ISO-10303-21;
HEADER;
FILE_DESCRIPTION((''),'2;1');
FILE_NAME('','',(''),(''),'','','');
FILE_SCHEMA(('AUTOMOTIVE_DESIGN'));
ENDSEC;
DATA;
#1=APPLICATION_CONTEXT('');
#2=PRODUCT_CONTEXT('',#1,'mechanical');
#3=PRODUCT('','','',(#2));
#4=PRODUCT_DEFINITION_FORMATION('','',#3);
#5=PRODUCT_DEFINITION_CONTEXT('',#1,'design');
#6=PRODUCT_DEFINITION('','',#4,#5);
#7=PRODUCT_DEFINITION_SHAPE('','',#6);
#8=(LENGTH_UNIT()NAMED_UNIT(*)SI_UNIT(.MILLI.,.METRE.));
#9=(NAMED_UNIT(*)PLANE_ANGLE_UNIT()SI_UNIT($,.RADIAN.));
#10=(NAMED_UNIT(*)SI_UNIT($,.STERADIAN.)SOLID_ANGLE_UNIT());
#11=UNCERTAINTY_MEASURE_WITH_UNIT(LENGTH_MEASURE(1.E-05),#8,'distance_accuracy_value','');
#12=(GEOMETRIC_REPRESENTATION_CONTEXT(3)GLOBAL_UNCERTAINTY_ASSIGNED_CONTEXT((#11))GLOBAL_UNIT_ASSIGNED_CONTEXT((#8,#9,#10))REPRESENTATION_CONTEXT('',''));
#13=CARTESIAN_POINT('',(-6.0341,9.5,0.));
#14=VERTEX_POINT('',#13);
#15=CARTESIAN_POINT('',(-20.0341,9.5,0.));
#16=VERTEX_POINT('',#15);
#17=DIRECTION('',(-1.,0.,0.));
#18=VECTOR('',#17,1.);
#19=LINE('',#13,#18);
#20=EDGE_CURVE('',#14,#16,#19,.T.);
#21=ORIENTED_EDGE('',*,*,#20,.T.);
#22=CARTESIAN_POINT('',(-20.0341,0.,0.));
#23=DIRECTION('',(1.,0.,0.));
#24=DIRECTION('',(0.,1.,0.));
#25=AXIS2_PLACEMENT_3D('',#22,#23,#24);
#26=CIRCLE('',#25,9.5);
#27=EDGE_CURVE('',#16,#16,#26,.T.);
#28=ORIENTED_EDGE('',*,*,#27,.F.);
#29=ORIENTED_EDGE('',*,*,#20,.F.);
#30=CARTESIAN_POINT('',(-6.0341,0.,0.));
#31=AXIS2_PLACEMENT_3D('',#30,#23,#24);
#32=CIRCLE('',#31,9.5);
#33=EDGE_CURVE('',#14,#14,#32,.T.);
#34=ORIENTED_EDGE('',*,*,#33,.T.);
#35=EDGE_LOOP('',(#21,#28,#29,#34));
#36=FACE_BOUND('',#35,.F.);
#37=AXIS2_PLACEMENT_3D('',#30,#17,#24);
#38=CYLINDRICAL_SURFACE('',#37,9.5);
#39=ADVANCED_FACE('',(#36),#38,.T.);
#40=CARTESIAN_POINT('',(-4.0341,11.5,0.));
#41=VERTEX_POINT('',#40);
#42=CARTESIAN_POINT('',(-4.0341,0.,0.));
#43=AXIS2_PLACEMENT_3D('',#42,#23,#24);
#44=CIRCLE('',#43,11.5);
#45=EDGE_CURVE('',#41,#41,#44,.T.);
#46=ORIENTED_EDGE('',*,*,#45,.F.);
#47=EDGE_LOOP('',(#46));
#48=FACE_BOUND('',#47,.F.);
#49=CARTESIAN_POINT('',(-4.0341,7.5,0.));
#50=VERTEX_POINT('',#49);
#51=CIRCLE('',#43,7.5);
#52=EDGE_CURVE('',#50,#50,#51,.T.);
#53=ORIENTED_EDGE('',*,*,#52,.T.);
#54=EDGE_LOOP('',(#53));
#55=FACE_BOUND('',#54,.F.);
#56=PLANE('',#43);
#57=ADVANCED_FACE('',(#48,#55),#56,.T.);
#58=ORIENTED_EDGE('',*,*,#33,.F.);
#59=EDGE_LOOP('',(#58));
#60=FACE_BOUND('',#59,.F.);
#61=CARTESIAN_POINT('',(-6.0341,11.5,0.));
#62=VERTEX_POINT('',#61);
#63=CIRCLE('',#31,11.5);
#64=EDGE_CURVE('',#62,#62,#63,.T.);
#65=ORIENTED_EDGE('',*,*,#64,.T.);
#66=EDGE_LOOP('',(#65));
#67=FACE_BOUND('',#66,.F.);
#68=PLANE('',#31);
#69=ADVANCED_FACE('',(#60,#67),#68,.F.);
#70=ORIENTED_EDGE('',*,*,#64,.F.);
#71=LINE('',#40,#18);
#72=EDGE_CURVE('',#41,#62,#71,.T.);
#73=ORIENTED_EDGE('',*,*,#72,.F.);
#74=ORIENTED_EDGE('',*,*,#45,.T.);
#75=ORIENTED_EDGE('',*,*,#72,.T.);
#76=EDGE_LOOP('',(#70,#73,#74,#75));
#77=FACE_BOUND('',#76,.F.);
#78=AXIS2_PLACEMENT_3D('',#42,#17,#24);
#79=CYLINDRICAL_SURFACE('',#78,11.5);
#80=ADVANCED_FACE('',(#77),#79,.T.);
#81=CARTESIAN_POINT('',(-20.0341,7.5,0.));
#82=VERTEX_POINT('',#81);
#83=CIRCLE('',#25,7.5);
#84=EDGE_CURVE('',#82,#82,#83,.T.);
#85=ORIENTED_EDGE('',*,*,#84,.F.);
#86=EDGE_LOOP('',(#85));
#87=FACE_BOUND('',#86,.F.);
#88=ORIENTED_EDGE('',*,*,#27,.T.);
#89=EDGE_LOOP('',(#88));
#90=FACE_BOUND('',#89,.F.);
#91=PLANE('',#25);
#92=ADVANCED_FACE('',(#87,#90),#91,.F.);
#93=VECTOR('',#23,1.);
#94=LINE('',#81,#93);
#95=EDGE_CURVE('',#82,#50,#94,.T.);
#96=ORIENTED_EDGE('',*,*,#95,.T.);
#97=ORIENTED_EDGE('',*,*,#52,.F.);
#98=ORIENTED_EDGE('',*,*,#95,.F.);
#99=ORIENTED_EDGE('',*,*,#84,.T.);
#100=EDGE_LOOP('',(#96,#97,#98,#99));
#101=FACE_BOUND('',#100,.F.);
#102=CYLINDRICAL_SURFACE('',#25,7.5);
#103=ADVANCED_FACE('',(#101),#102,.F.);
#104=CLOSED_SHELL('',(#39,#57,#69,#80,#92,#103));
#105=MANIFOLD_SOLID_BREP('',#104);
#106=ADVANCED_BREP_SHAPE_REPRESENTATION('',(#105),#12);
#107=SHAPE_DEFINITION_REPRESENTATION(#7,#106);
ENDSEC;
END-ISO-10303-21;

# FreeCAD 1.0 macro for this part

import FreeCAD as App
import Part
import Sketcher
Q = App.Units.Quantity

doc = App.newDocument("Part")
body = doc.addObject("PartDesign::Body", "Body")

# Sketch on XY plane
sketch1 = body.newObject("Sketcher::SketchObject", "Sketch")
sketch1.AttachmentSupport = (doc.getObject("XY_Plane"), [""])
sketch1.MapMode = "FlatFace"
sketch1.addGeometry([
    Part.LineSegment(App.Vector(-4, 11.5, 0), App.Vector(-6, 11.5, 0)),  # 0
    Part.LineSegment(App.Vector(-6, 11.5, 0), App.Vector(-6, 9.5, 0)),  # 1
    Part.LineSegment(App.Vector(-6, 9.5, 0), App.Vector(-20, 9.5, 0)),  # 2
    Part.LineSegment(App.Vector(-20, 9.5, 0), App.Vector(-20, 7.5, 0)),  # 3
    Part.LineSegment(App.Vector(-20, 7.5, 0), App.Vector(-4, 7.5, 0)),  # 4
    Part.LineSegment(App.Vector(-4, 7.5, 0), App.Vector(-4, 11.5, 0)),  # 5
], False)
sketch1.addConstraint([
    Sketcher.Constraint("Coincident", 0, 2, 1, 1),
    Sketcher.Constraint("Coincident", 1, 2, 2, 1),
    Sketcher.Constraint("Coincident", 2, 2, 3, 1),
    Sketcher.Constraint("Coincident", 3, 2, 4, 1),
    Sketcher.Constraint("Coincident", 4, 2, 5, 1),
    Sketcher.Constraint("Coincident", 5, 2, 0, 1),
    Sketcher.Constraint("Horizontal", 0),
    Sketcher.Constraint("Vertical", 1),
    Sketcher.Constraint("Horizontal", 2),
    Sketcher.Constraint("Vertical", 3),
    Sketcher.Constraint("Horizontal", 4),
    Sketcher.Constraint("Vertical", 5),
    Sketcher.Constraint("Equal", 0, 1),
    Sketcher.Constraint("Equal", 1, 3),
    Sketcher.Constraint("DistanceX", 0, 2, 0, 1, Q("2 mm")),
    Sketcher.Constraint("DistanceX", 2, 2, 2, 1, Q("14 mm")),
    Sketcher.Constraint("DistanceX", 0, 2, -1, 1, Q("6.034 mm")),
    Sketcher.Constraint("DistanceY", -1, 1, 0, 2, Q("11.5 mm")),
])
revolution = body.newObject("PartDesign::Revolution", "Revolution")
revolution.Profile = sketch1
revolution.ReferenceAxis = (sketch1, ["H_Axis"])
revolution.Angle = 360

doc.recompute()
